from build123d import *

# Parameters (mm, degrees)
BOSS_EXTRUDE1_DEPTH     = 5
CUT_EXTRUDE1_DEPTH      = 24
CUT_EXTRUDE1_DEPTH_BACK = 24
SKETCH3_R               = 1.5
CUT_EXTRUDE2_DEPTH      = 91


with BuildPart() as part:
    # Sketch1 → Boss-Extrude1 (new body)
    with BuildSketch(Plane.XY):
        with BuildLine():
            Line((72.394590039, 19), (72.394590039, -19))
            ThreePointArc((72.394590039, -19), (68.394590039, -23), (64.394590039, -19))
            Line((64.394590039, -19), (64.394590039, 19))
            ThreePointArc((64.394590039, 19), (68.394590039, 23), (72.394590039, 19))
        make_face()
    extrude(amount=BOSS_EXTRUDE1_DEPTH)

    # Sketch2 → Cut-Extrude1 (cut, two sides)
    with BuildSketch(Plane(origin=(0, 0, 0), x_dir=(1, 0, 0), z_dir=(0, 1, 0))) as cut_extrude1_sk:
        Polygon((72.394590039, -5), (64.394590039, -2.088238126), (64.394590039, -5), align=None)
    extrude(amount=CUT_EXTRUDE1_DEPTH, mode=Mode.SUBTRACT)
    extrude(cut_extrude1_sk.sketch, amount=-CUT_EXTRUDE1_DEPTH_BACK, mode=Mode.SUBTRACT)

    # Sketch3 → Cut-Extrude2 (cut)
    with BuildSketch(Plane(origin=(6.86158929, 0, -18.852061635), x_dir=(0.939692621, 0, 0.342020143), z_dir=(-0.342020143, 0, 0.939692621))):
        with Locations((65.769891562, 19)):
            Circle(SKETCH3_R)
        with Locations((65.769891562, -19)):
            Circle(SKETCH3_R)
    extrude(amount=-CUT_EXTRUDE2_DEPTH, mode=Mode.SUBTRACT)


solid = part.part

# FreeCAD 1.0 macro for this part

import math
import FreeCAD as App
import Part
import Sketcher
Q = App.Units.Quantity

doc = App.newDocument("Part")
body = doc.addObject("PartDesign::Body", "Body")

# Sketch on XY plane
sketch1 = body.newObject("Sketcher::SketchObject", "Sketch")
sketch1.AttachmentSupport = (doc.getObject("XY_Plane"), [""])
sketch1.MapMode = "FlatFace"
sketch1.addGeometry(Part.LineSegment(App.Vector(72.4, -19, 0), App.Vector(72.4, 19, 0)), False)
sketch1.addGeometry(Part.ArcOfCircle(Part.Circle(App.Vector(68.4, 19, 0), App.Vector(0, 0, 1), 4), math.radians(0), math.radians(180)), False)
sketch1.addGeometry(Part.LineSegment(App.Vector(64.4, 19, 0), App.Vector(64.4, -19, 0)), False)
sketch1.addGeometry(Part.ArcOfCircle(Part.Circle(App.Vector(68.4, -19, 0), App.Vector(0, 0, 1), 4), math.radians(180), math.radians(360)), False)
sketch1.addConstraint(Sketcher.Constraint("Tangent", 0, 2, 1, 1))
sketch1.addConstraint(Sketcher.Constraint("Tangent", 1, 2, 2, 1))
sketch1.addConstraint(Sketcher.Constraint("Tangent", 2, 2, 3, 1))
sketch1.addConstraint(Sketcher.Constraint("Tangent", 3, 2, 0, 1))
sketch1.addConstraint(Sketcher.Constraint("Vertical", 0))
sketch1.addConstraint(Sketcher.Constraint("Vertical", 2))
sketch1.addConstraint(Sketcher.Constraint("Radius", 1, 4.0))
sketch1.addConstraint(Sketcher.Constraint("DistanceY", 0, 1, 0, 2, 38.0))
sketch1.addConstraint(Sketcher.Constraint("DistanceY", -1, 1, 1, 3, 19.0))
sketch1.addConstraint(Sketcher.Constraint("DistanceX", -1, 1, 1, 3, 68.39459))
pad1 = body.newObject("PartDesign::Pad", "Pad")
pad1.Profile = sketch1
pad1.Length = 5

# Sketch on XZ plane
sketch2 = body.newObject("Sketcher::SketchObject", "Sketch001")
sketch2.AttachmentSupport = (doc.getObject("XZ_Plane"), [""])
sketch2.MapMode = "FlatFace"
sketch2.addGeometry(Part.LineSegment(App.Vector(72.4, 5, 0), App.Vector(64.4, 2.1, 0)), False)
sketch2.addGeometry(Part.LineSegment(App.Vector(64.4, 2.1, 0), App.Vector(64.4, 5, 0)), False)
sketch2.addGeometry(Part.LineSegment(App.Vector(64.4, 5, 0), App.Vector(72.4, 5, 0)), False)
sketch2.addConstraint(Sketcher.Constraint("Coincident", 0, 2, 1, 1))
sketch2.addConstraint(Sketcher.Constraint("Coincident", 1, 2, 2, 1))
sketch2.addConstraint(Sketcher.Constraint("Coincident", 2, 2, 0, 1))
sketch2.addConstraint(Sketcher.Constraint("Vertical", 1))
sketch2.addConstraint(Sketcher.Constraint("Horizontal", 2))
sketch2.addConstraint(Sketcher.Constraint("DistanceX", 2, 1, 2, 2, 8.0))
sketch2.addConstraint(Sketcher.Constraint("Angle", 0, Q("-160 deg")))
sketch2.addConstraint(Sketcher.Constraint("DistanceY", -1, 1, 1, 2, 5.0))
sketch2.addConstraint(Sketcher.Constraint("DistanceX", -1, 1, 0, 2, 64.39459))
pocket1 = body.newObject("PartDesign::Pocket", "Pocket")
pocket1.Profile = sketch2
pocket1.Type = "ThroughAll"
pocket1.Midplane = True

# Sketch on an angled plane
sketch3 = body.newObject("Sketcher::SketchObject", "Sketch002")
sketch3.Placement = App.Placement(App.Vector(6.861589, 0, -18.852062), App.Rotation(App.Vector(0.939692621, 0, 0.342020143), App.Vector(0, 1, 0), App.Vector(-0.342020143, 0, 0.939692621), "ZXY"))
sketch3.addGeometry(Part.Circle(App.Vector(65.8, 19, 0), App.Vector(0, 0, 1), 1.5), False)
sketch3.addGeometry(Part.Circle(App.Vector(65.8, -19, 0), App.Vector(0, 0, 1), 1.5), False)
sketch3.addConstraint(Sketcher.Constraint("Equal", 0, 1))
sketch3.addConstraint(Sketcher.Constraint("Symmetric", 0, 3, 1, 3, -1))
sketch3.addConstraint(Sketcher.Constraint("Diameter", 0, 3.0))
sketch3.addConstraint(Sketcher.Constraint("DistanceY", -1, 1, 0, 3, 19.0))
sketch3.addConstraint(Sketcher.Constraint("DistanceX", -1, 1, 0, 3, 65.769892))
pocket2 = body.newObject("PartDesign::Pocket", "Pocket001")
pocket2.Profile = sketch3
pocket2.Length = 91

doc.recompute()
